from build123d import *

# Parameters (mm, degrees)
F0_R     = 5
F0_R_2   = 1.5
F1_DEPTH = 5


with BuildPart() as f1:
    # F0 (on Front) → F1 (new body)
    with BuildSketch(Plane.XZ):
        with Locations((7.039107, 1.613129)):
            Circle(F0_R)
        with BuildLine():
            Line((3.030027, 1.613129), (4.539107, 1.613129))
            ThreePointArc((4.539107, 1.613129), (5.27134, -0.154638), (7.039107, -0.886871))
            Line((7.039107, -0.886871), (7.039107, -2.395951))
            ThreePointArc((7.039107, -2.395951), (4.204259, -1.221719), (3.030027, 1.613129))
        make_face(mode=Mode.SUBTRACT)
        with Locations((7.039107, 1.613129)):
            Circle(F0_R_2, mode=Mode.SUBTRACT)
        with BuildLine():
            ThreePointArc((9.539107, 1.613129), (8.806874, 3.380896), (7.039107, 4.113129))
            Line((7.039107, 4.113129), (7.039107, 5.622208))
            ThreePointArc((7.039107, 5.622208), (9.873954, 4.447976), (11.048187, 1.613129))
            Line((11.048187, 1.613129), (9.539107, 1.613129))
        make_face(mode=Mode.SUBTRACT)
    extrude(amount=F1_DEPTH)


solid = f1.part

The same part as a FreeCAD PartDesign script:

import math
import FreeCAD as App
import Part
import Sketcher
Q = App.Units.Quantity

doc = App.newDocument("Part")
body = doc.addObject("PartDesign::Body", "Body")

# Sketch on XZ plane
sketch1 = doc.addObject("Sketcher::SketchObject", "Sketch")
body.addObject(sketch1)
sketch1.AttachmentSupport = (doc.XZ_Plane, [""])
sketch1.MapMode = "FlatFace"
sketch1.addGeometry([
    Part.Circle(App.Vector(7.039107, 1.613129, 0), App.Vector(0, 0, 1), 5),  # 0
    Part.ArcOfCircle(Part.Circle(App.Vector(7.039106, 1.613128, 0), App.Vector(0, 0, 1), 4.009079), math.radians(179.999983), math.radians(270.000017)),  # 1
    Part.LineSegment(App.Vector(3.030027, 1.613129, 0), App.Vector(4.539107, 1.613129, 0)),  # 2
    Part.ArcOfCircle(Part.Circle(App.Vector(7.039107, 1.613129, 0), App.Vector(0, 0, 1), 2.5), math.radians(179.999996), math.radians(270.000004)),  # 3
    Part.LineSegment(App.Vector(7.039107, -0.886871, 0), App.Vector(7.039107, -2.395951, 0)),  # 4
    Part.Circle(App.Vector(7.039107, 1.613129, 0), App.Vector(0, 0, 1), 1.5),  # 5
    Part.LineSegment(App.Vector(11.048187, 1.613129, 0), App.Vector(9.539107, 1.613129, 0)),  # 6
    Part.ArcOfCircle(Part.Circle(App.Vector(7.039107, 1.613129, 0), App.Vector(0, 0, 1), 2.5), math.radians(-0.000004), math.radians(90.000004)),  # 7
    Part.LineSegment(App.Vector(7.039107, 4.113129, 0), App.Vector(7.039107, 5.622208, 0)),  # 8
    Part.ArcOfCircle(Part.Circle(App.Vector(7.039106, 1.613127, 0), App.Vector(0, 0, 1), 4.009081), math.radians(0.000022), math.radians(89.999992)),  # 9
], False)
sketch1.addConstraint([
    Sketcher.Constraint("Coincident", 1, 1, 2, 1),
    Sketcher.Constraint("Coincident", 2, 2, 3, 1),
    Sketcher.Constraint("Coincident", 3, 2, 4, 1),
    Sketcher.Constraint("Coincident", 4, 2, 1, 2),
    Sketcher.Constraint("Coincident", 6, 2, 7, 1),
    Sketcher.Constraint("Coincident", 7, 2, 8, 1),
    Sketcher.Constraint("Coincident", 8, 2, 9, 2),
    Sketcher.Constraint("Coincident", 9, 1, 6, 1),
    Sketcher.Constraint("Horizontal", 2),
    Sketcher.Constraint("Vertical", 4),
    Sketcher.Constraint("Horizontal", 6),
    Sketcher.Constraint("Vertical", 8),
    Sketcher.Constraint("Coincident", 1, 3, 0, 3),
    Sketcher.Constraint("Coincident", 3, 3, 0, 3),
    Sketcher.Constraint("Coincident", 5, 3, 0, 3),
    Sketcher.Constraint("Coincident", 7, 3, 0, 3),
    Sketcher.Constraint("Coincident", 9, 3, 0, 3),
    Sketcher.Constraint("Equal", 3, 7),
    Sketcher.Constraint("Equal", 1, 9),
    Sketcher.Constraint("Horizontal", 9, 3, 1, 1),
    Sketcher.Constraint("Horizontal", 2, 2, 6, 2),
    Sketcher.Constraint("Vertical", 9, 3, 3, 2),
    Sketcher.Constraint("Vertical", 4, 2, 7, 2),
    Sketcher.Constraint("Diameter", 0, Q("10 mm")),
    Sketcher.Constraint("Diameter", 5, Q("3 mm")),
    Sketcher.Constraint("Radius", 3, Q("2.5 mm")),
    Sketcher.Constraint("Radius", 1, Q("4.009079 mm")),
    Sketcher.Constraint("DistanceY", -1, 1, 0, 3, Q("1.613129 mm")),
    Sketcher.Constraint("DistanceX", -1, 1, 0, 3, Q("7.039107 mm")),
])
pad1 = doc.addObject("PartDesign::Pad", "Pad")
body.addObject(pad1)
pad1.Profile = sketch1
pad1.Length = 5

doc.recompute()
